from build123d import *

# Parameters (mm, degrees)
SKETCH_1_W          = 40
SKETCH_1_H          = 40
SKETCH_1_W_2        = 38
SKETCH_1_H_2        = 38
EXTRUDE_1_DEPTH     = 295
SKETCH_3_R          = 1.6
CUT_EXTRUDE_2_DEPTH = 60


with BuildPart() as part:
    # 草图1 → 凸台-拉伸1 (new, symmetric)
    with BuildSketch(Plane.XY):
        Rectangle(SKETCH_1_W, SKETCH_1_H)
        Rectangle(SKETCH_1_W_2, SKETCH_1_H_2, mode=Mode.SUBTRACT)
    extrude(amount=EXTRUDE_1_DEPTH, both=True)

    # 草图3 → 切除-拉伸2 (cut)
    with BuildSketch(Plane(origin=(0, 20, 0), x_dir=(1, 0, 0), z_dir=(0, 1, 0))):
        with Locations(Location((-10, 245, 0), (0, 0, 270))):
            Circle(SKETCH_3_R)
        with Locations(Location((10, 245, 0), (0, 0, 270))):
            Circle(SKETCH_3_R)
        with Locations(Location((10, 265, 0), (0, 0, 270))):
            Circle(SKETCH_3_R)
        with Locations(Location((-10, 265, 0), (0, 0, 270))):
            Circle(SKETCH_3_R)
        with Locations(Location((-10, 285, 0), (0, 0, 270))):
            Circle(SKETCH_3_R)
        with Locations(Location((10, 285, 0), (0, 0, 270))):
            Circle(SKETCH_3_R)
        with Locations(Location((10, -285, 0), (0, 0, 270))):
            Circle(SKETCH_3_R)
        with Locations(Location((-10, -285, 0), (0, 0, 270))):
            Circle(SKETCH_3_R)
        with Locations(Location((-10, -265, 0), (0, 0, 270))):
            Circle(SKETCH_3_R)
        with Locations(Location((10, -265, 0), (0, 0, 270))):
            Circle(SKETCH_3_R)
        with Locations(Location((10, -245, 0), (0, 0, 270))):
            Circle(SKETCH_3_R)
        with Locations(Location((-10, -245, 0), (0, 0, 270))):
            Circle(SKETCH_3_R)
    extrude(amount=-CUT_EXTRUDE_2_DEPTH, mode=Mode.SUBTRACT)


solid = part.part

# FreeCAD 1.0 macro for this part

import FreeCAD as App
import Part
import Sketcher
from FreeCAD import Vector
Q = App.Units.Quantity

doc = App.newDocument("Part")
params = doc.addObject("Spreadsheet::Sheet", "Params")
for row, (alias, value) in enumerate([
    ("sketch1_width", "40 mm"),
    ("sketch1_width2", "38 mm"),
    ("pad1_length", "590 mm"),
    ("sketch2_diameter", "3.2 mm"),
    ("pocket1_length", "60 mm"),
], start=1):
    params.set(f"A{row}", alias)
    params.set(f"B{row}", "=" + value)
    params.setAlias(f"B{row}", alias)

body = doc.addObject("PartDesign::Body", "Body")

# Sketch on XY plane
sketch1 = doc.addObject("Sketcher::SketchObject", "Sketch")
body.addObject(sketch1)
sketch1.AttachmentSupport = (doc.XY_Plane, [""])
sketch1.MapMode = "FlatFace"
sketch1.addGeometry([
    Part.LineSegment(Vector(-20, 20, 0), Vector(-20, -20, 0)),  # 0
    Part.LineSegment(Vector(-20, -20, 0), Vector(20, -20, 0)),  # 1
    Part.LineSegment(Vector(20, -20, 0), Vector(20, 20, 0)),  # 2
    Part.LineSegment(Vector(20, 20, 0), Vector(-20, 20, 0)),  # 3
    Part.LineSegment(Vector(19, -19, 0), Vector(-19, -19, 0)),  # 4
    Part.LineSegment(Vector(-19, -19, 0), Vector(-19, 19, 0)),  # 5
    Part.LineSegment(Vector(-19, 19, 0), Vector(19, 19, 0)),  # 6
    Part.LineSegment(Vector(19, 19, 0), Vector(19, -19, 0)),  # 7
], False)
sketch1.addConstraint([
    Sketcher.Constraint("Coincident", 0, 2, 1, 1),
    Sketcher.Constraint("Coincident", 1, 2, 2, 1),
    Sketcher.Constraint("Coincident", 2, 2, 3, 1),
    Sketcher.Constraint("Coincident", 3, 2, 0, 1),
    Sketcher.Constraint("Coincident", 4, 2, 5, 1),
    Sketcher.Constraint("Coincident", 5, 2, 6, 1),
    Sketcher.Constraint("Coincident", 6, 2, 7, 1),
    Sketcher.Constraint("Coincident", 7, 2, 4, 1),
    Sketcher.Constraint("Vertical", 0),
    Sketcher.Constraint("Horizontal", 1),
    Sketcher.Constraint("Vertical", 2),
    Sketcher.Constraint("Horizontal", 3),
    Sketcher.Constraint("Horizontal", 4),
    Sketcher.Constraint("Vertical", 5),
    Sketcher.Constraint("Horizontal", 6),
    Sketcher.Constraint("Vertical", 7),
    Sketcher.Constraint("Symmetric", 0, 2, 2, 2, -1, 1),
    Sketcher.Constraint("Symmetric", 4, 2, 6, 2, -1, 1),
    Sketcher.Constraint("Equal", 3, 0),
    Sketcher.Constraint("Equal", 6, 5),
    Sketcher.Constraint("DistanceX", 1, 1, 1, 2, Q("40 mm")),
    Sketcher.Constraint("DistanceX", 4, 2, 4, 1, Q("38 mm")),
])
sketch1.setExpression("Constraints[20]", "Params.sketch1_width")
sketch1.setExpression("Constraints[21]", "Params.sketch1_width2")
pad1 = doc.addObject("PartDesign::Pad", "Pad")
body.addObject(pad1)
pad1.Profile = sketch1
pad1.setExpression("Length", "Params.pad1_length")
pad1.Midplane = True

# Sketch on XZ plane
sketch2 = doc.addObject("Sketcher::SketchObject", "Sketch001")
body.addObject(sketch2)
sketch2.AttachmentSupport = (doc.XZ_Plane, [""])
sketch2.MapMode = "FlatFace"
sketch2.AttachmentOffset = App.Placement(Vector(0, 0, -20), App.Rotation())
sketch2.addGeometry([
    Part.Circle(Vector(-10, -245, 0), Vector(0, 0, 1), 1.6),  # 0
    Part.Circle(Vector(10, -245, 0), Vector(0, 0, 1), 1.6),  # 1
    Part.Circle(Vector(10, -265, 0), Vector(0, 0, 1), 1.6),  # 2
    Part.Circle(Vector(-10, -265, 0), Vector(0, 0, 1), 1.6),  # 3
    Part.Circle(Vector(-10, -285, 0), Vector(0, 0, 1), 1.6),  # 4
    Part.Circle(Vector(10, -285, 0), Vector(0, 0, 1), 1.6),  # 5
    Part.Circle(Vector(10, 285, 0), Vector(0, 0, 1), 1.6),  # 6
    Part.Circle(Vector(-10, 285, 0), Vector(0, 0, 1), 1.6),  # 7
    Part.Circle(Vector(-10, 265, 0), Vector(0, 0, 1), 1.6),  # 8
    Part.Circle(Vector(10, 265, 0), Vector(0, 0, 1), 1.6),  # 9
    Part.Circle(Vector(10, 245, 0), Vector(0, 0, 1), 1.6),  # 10
    Part.Circle(Vector(-10, 245, 0), Vector(0, 0, 1), 1.6),  # 11
], False)
sketch2.addConstraint([
    Sketcher.Constraint("Equal", 0, 1),
    Sketcher.Constraint("Equal", 1, 2),
    Sketcher.Constraint("Equal", 2, 3),
    Sketcher.Constraint("Equal", 3, 4),
    Sketcher.Constraint("Equal", 4, 5),
    Sketcher.Constraint("Equal", 5, 6),
    Sketcher.Constraint("Equal", 6, 7),
    Sketcher.Constraint("Equal", 7, 8),
    Sketcher.Constraint("Equal", 8, 9),
    Sketcher.Constraint("Equal", 9, 10),
    Sketcher.Constraint("Equal", 10, 11),
    Sketcher.Constraint("Symmetric", 4, 3, 6, 3, -1, 1),
    Sketcher.Constraint("Symmetric", 5, 3, 7, 3, -1, 1),
    Sketcher.Constraint("Symmetric", 2, 3, 8, 3, -1, 1),
    Sketcher.Constraint("Symmetric", 3, 3, 9, 3, -1, 1),
    Sketcher.Constraint("Symmetric", 0, 3, 10, 3, -1, 1),
    Sketcher.Constraint("Symmetric", 1, 3, 11, 3, -1, 1),
    Sketcher.Constraint("Symmetric", 0, 3, 1, 3, -2),
    Sketcher.Constraint("Symmetric", 2, 3, 3, 3, -2),
    Sketcher.Constraint("Symmetric", 4, 3, 5, 3, -2),
    Sketcher.Constraint("Vertical", 1, 3, 2, 3),
    Sketcher.Constraint("Vertical", 3, 3, 4, 3),
    Sketcher.Constraint("Diameter", 0, Q("3.2 mm")),
    Sketcher.Constraint("DistanceX", 0, 3, -1, 1, Q("10 mm")),
    Sketcher.Constraint("DistanceY", 0, 3, -1, 1, Q("245 mm")),
    Sketcher.Constraint("DistanceY", 2, 3, -1, 1, Q("265 mm")),
    Sketcher.Constraint("DistanceY", 4, 3, -1, 1, Q("285 mm")),
])
sketch2.setExpression("Constraints[22]", "Params.sketch2_diameter")
pocket1 = doc.addObject("PartDesign::Pocket", "Pocket")
body.addObject(pocket1)
pocket1.Profile = sketch2
pocket1.setExpression("Length", "Params.pocket1_length")
pocket1.Reversed = True

doc.recompute()
